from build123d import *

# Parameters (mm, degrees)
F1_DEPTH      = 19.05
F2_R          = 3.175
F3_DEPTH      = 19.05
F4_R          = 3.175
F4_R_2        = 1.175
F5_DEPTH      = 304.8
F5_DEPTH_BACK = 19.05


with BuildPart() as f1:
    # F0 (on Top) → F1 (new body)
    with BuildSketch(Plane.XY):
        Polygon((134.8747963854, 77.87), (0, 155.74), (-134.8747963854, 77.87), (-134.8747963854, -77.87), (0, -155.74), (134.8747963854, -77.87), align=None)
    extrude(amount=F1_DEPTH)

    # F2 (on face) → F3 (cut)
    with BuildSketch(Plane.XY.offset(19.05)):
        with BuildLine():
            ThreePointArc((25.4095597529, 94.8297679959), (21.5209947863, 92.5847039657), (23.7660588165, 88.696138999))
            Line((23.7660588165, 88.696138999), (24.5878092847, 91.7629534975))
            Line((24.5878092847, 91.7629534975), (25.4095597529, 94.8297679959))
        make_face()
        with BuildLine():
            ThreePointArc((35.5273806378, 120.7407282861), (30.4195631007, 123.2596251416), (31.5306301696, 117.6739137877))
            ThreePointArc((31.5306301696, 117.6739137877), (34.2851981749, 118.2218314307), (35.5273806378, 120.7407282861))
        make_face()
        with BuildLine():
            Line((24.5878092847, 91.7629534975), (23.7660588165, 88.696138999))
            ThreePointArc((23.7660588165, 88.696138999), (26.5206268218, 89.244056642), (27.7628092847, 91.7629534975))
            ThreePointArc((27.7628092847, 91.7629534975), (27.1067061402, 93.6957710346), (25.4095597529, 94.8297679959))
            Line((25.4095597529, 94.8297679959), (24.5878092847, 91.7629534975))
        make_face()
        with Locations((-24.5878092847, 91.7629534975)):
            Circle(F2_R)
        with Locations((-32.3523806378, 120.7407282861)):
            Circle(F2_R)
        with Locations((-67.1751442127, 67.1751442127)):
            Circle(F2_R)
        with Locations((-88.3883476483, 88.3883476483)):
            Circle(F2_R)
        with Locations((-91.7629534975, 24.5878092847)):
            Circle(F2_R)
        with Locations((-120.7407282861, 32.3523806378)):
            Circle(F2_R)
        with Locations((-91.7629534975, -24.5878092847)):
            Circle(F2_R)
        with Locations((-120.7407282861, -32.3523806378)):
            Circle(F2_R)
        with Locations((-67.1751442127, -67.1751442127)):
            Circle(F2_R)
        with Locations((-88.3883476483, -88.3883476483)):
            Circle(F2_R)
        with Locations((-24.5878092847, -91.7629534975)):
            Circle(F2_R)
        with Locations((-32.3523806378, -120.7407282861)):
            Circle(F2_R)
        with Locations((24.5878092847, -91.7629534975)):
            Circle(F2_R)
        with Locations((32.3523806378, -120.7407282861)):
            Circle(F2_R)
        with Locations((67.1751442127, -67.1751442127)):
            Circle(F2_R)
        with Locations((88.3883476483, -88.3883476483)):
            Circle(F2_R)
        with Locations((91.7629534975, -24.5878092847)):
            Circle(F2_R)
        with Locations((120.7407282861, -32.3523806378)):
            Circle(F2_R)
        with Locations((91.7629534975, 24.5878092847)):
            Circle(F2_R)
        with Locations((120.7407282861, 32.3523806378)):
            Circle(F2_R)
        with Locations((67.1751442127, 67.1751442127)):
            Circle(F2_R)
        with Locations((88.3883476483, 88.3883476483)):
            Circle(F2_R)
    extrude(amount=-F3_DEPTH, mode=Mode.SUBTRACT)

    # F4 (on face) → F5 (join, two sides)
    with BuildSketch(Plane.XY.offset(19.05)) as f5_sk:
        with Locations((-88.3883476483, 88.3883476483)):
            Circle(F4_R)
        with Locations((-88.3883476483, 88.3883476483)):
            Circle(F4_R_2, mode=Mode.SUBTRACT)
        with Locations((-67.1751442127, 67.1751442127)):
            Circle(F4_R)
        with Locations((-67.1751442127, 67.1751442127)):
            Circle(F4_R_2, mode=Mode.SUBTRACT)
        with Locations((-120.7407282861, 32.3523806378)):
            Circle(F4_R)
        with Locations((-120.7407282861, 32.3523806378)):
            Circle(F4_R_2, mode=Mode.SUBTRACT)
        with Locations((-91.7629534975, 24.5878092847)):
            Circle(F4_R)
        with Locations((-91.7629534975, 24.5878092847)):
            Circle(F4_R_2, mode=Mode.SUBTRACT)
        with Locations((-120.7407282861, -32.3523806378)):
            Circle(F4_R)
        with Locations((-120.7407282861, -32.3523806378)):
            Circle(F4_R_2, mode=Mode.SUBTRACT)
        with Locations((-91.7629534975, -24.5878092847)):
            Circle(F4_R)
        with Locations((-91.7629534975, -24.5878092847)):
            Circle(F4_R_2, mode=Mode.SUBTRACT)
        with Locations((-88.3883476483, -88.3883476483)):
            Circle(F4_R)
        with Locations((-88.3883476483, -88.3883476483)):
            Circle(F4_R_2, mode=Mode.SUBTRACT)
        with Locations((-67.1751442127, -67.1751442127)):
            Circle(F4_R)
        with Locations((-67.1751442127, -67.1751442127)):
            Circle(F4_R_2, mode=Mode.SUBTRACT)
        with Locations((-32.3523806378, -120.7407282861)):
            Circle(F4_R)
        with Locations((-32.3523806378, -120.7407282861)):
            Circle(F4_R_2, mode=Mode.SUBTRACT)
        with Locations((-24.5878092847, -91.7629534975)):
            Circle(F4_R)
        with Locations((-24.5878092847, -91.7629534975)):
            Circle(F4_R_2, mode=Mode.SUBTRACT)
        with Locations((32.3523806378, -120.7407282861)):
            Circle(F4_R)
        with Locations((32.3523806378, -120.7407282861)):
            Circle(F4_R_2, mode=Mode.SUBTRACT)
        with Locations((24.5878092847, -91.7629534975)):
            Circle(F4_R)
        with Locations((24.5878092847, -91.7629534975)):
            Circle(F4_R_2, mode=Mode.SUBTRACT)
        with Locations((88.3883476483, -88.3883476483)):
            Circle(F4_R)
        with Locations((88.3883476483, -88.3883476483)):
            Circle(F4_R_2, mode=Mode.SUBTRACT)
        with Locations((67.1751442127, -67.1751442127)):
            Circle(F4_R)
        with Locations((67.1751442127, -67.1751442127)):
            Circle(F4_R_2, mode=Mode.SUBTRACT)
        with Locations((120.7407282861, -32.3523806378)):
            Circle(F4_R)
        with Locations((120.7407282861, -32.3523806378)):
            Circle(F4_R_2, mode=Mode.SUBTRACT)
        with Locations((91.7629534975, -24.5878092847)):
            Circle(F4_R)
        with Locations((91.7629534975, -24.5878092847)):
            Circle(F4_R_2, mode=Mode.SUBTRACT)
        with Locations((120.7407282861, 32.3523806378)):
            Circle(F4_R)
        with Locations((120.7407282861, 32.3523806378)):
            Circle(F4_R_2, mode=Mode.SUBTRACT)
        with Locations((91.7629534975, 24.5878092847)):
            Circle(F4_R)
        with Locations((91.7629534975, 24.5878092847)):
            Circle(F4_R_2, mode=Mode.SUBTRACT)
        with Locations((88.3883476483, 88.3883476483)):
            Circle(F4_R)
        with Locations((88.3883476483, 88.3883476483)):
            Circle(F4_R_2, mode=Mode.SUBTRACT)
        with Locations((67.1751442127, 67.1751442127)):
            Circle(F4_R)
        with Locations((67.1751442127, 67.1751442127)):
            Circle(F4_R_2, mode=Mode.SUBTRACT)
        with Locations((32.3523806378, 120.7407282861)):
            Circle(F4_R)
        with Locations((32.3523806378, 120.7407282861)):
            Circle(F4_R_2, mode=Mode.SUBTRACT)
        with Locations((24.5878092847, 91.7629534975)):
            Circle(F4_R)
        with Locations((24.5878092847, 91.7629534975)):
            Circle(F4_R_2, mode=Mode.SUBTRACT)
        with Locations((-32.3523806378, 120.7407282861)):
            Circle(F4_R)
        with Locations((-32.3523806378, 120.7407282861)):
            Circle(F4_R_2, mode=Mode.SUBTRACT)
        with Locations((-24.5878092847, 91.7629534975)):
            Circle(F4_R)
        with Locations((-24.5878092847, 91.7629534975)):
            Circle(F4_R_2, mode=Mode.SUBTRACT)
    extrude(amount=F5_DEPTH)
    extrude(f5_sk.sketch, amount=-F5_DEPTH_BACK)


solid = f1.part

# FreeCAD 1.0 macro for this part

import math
import FreeCAD as App
import Part
import Sketcher

V = App.Vector
Q = App.Units.Quantity

doc = App.newDocument("Part")
body = doc.addObject("PartDesign::Body", "Body")

# Sketch on XY plane
sketch1 = body.newObject("Sketcher::SketchObject", "Sketch")
sketch1.AttachmentSupport = (doc.getObject("XY_Plane"), [""])
sketch1.MapMode = "FlatFace"
sketch1.addGeometry([
    Part.LineSegment(V(135, 78, 0), V(0, 156, 0)),  # 0
    Part.LineSegment(V(0, 156, 0), V(-135, 78, 0)),  # 1
    Part.LineSegment(V(-135, 78, 0), V(-135, -78, 0)),  # 2
    Part.LineSegment(V(-135, -78, 0), V(0, -156, 0)),  # 3
    Part.LineSegment(V(0, -156, 0), V(135, -78, 0)),  # 4
    Part.LineSegment(V(135, -78, 0), V(135, 78, 0)),  # 5
], False)
sketch1.addConstraint([
    Sketcher.Constraint("Coincident", 0, 2, 1, 1),
    Sketcher.Constraint("Coincident", 1, 2, 2, 1),
    Sketcher.Constraint("Coincident", 2, 2, 3, 1),
    Sketcher.Constraint("Coincident", 3, 2, 4, 1),
    Sketcher.Constraint("Coincident", 4, 2, 5, 1),
    Sketcher.Constraint("Coincident", 5, 2, 0, 1),
    Sketcher.Constraint("Vertical", 2),
    Sketcher.Constraint("Vertical", 5),
    Sketcher.Constraint("Symmetric", 0, 2, 3, 2, -1, 1),
    Sketcher.Constraint("Symmetric", 1, 2, 4, 2, -1, 1),
    Sketcher.Constraint("PointOnObject", 0, 2, -2),
    Sketcher.Constraint("Parallel", 0, 3),
    Sketcher.Constraint("Horizontal", 2, 2, 4, 2),
    Sketcher.Constraint("Angle", 0, Q("150 deg")),
    Sketcher.Constraint("DistanceY", 2, 2, 2, 1, 155.74),
    Sketcher.Constraint("Distance", 0, 155.74),
])
pad1 = body.newObject("PartDesign::Pad", "Pad")
pad1.Profile = sketch1
pad1.Length = Q("0.75 in")

# Sketch on XY plane
sketch2 = body.newObject("Sketcher::SketchObject", "Sketch001")
sketch2.AttachmentSupport = (doc.getObject("XY_Plane"), [""])
sketch2.MapMode = "FlatFace"
sketch2.AttachmentOffset = App.Placement(V(0, 0, 0.75 * 25.4), App.Rotation())
sketch2.addGeometry([
    Part.ArcOfCircle(Part.Circle(V(24.6, 91.8, 0), V(0, 0, 1), 3.2), math.radians(75), math.radians(255)),  # 0
    Part.ArcOfCircle(Part.Circle(V(24.6, 91.8, 0), V(0, 0, 1), 3.2), math.radians(-105), math.radians(0)),  # 1
    Part.ArcOfCircle(Part.Circle(V(24.6, 91.8, 0), V(0, 0, 1), 3.2), math.radians(0), math.radians(75)),  # 2
    Part.ArcOfCircle(Part.Circle(V(32.4, 120.7, 0), V(0, 0, 1), 3.2), math.radians(0), math.radians(255)),  # 3
    Part.ArcOfCircle(Part.Circle(V(32.4, 120.7, 0), V(0, 0, 1), 3.2), math.radians(-105), math.radians(0)),  # 4
    Part.Circle(V(-24.6, 91.8, 0), V(0, 0, 1), 3.2),  # 5
    Part.Circle(V(-32.4, 120.7, 0), V(0, 0, 1), 3.2),  # 6
    Part.Circle(V(-67.2, 67.2, 0), V(0, 0, 1), 3.2),  # 7
    Part.Circle(V(-88.4, 88.4, 0), V(0, 0, 1), 3.2),  # 8
    Part.Circle(V(-91.8, 24.6, 0), V(0, 0, 1), 3.2),  # 9
    Part.Circle(V(-120.7, 32.4, 0), V(0, 0, 1), 3.2),  # 10
    Part.Circle(V(-91.8, -24.6, 0), V(0, 0, 1), 3.2),  # 11
    Part.Circle(V(-120.7, -32.4, 0), V(0, 0, 1), 3.2),  # 12
    Part.Circle(V(-67.2, -67.2, 0), V(0, 0, 1), 3.2),  # 13
    Part.Circle(V(-88.4, -88.4, 0), V(0, 0, 1), 3.2),  # 14
    Part.Circle(V(-24.6, -91.8, 0), V(0, 0, 1), 3.2),  # 15
    Part.Circle(V(-32.4, -120.7, 0), V(0, 0, 1), 3.2),  # 16
    Part.Circle(V(24.6, -91.8, 0), V(0, 0, 1), 3.2),  # 17
    Part.Circle(V(32.4, -120.7, 0), V(0, 0, 1), 3.2),  # 18
    Part.Circle(V(67.2, -67.2, 0), V(0, 0, 1), 3.2),  # 19
    Part.Circle(V(88.4, -88.4, 0), V(0, 0, 1), 3.2),  # 20
    Part.Circle(V(91.8, -24.6, 0), V(0, 0, 1), 3.2),  # 21
    Part.Circle(V(120.7, -32.4, 0), V(0, 0, 1), 3.2),  # 22
    Part.Circle(V(91.8, 24.6, 0), V(0, 0, 1), 3.2),  # 23
    Part.Circle(V(120.7, 32.4, 0), V(0, 0, 1), 3.2),  # 24
    Part.Circle(V(67.2, 67.2, 0), V(0, 0, 1), 3.2),  # 25
    Part.Circle(V(88.4, 88.4, 0), V(0, 0, 1), 3.2),  # 26
], False)
sketch2.addConstraint([
    Sketcher.Constraint("Tangent", 0, 2, 1, 1),
    Sketcher.Constraint("Tangent", 1, 2, 2, 1),
    Sketcher.Constraint("Tangent", 2, 2, 0, 1),
    Sketcher.Constraint("Tangent", 3, 1, 4, 2),
    Sketcher.Constraint("Coincident", 4, 1, 3, 2),
    Sketcher.Constraint("Equal", 2, 3),
    Sketcher.Constraint("Equal", 4, 5),
    Sketcher.Constraint("Equal", 5, 6),
    Sketcher.Constraint("Equal", 6, 7),
    Sketcher.Constraint("Equal", 7, 8),
    Sketcher.Constraint("Equal", 8, 9),
    Sketcher.Constraint("Equal", 9, 10),
    Sketcher.Constraint("Equal", 10, 11),
    Sketcher.Constraint("Equal", 11, 12),
    Sketcher.Constraint("Equal", 12, 13),
    Sketcher.Constraint("Equal", 13, 14),
    Sketcher.Constraint("Equal", 14, 15),
    Sketcher.Constraint("Equal", 15, 16),
    Sketcher.Constraint("Equal", 16, 17),
    Sketcher.Constraint("Equal", 17, 18),
    Sketcher.Constraint("Equal", 18, 19),
    Sketcher.Constraint("Equal", 19, 20),
    Sketcher.Constraint("Equal", 20, 21),
    Sketcher.Constraint("Equal", 21, 22),
    Sketcher.Constraint("Equal", 22, 23),
    Sketcher.Constraint("Equal", 23, 24),
    Sketcher.Constraint("Equal", 24, 25),
    Sketcher.Constraint("Equal", 25, 26),
    Sketcher.Constraint("Symmetric", 0, 3, 15, 3, -1, 1),
    Sketcher.Constraint("Symmetric", 3, 3, 16, 3, -1, 1),
    Sketcher.Constraint("Symmetric", 5, 3, 17, 3, -1, 1),
    Sketcher.Constraint("Symmetric", 6, 3, 18, 3, -1, 1),
    Sketcher.Constraint("Symmetric", 7, 3, 19, 3, -1, 1),
    Sketcher.Constraint("Symmetric", 8, 3, 20, 3, -1, 1),
    Sketcher.Constraint("Symmetric", 9, 3, 21, 3, -1, 1),
    Sketcher.Constraint("Symmetric", 10, 3, 22, 3, -1, 1),
    Sketcher.Constraint("Symmetric", 11, 3, 23, 3, -1, 1),
    Sketcher.Constraint("Symmetric", 12, 3, 24, 3, -1, 1),
    Sketcher.Constraint("Symmetric", 13, 3, 25, 3, -1, 1),
    Sketcher.Constraint("Symmetric", 14, 3, 26, 3, -1, 1),
    Sketcher.Constraint("Symmetric", 0, 3, 5, 3, -2),
    Sketcher.Constraint("Symmetric", 3, 3, 6, 3, -2),
    Sketcher.Constraint("Symmetric", 13, 3, 19, 3, -2),
    Sketcher.Constraint("Symmetric", 14, 3, 20, 3, -2),
    Sketcher.Constraint("Symmetric", 11, 3, 21, 3, -2),
    Sketcher.Constraint("Symmetric", 12, 3, 22, 3, -2),
    Sketcher.Constraint("Horizontal", 5, 3, 1, 2),
    Sketcher.Constraint("Horizontal", 6, 3, 3, 1),
    Sketcher.Constraint("Diameter", 5, Q("0.25 in")),
    Sketcher.Constraint("DistanceX", 0, 2, 2, 2, 1.643501),
    Sketcher.Constraint("DistanceX", -1, 1, 0, 3, 24.587809),
    Sketcher.Constraint("DistanceX", -1, 1, 3, 3, 32.352381),
    Sketcher.Constraint("DistanceY", -1, 1, 3, 3, 120.740728),
    Sketcher.Constraint("DistanceY", -1, 1, 9, 3, 24.587809),
    Sketcher.Constraint("DistanceX", 10, 3, -1, 1, 120.740728),
    Sketcher.Constraint("DistanceY", -1, 1, 10, 3, 32.352381),
    Sketcher.Constraint("DistanceX", -1, 1, 0, 2, 23.766059),
    Sketcher.Constraint("DistanceY", -1, 1, 0, 2, 88.696139),
    Sketcher.Constraint("DistanceX", -1, 1, 4, 1, 31.53063),
    Sketcher.Constraint("DistanceY", 7, 3, 5, 3, 24.587809),
    Sketcher.Constraint("DistanceX", 8, 3, 5, 3, 63.800538),
    Sketcher.Constraint("DistanceY", 8, 3, 6, 3, 32.352381),
    Sketcher.Constraint("DistanceX", 9, 3, 7, 3, 24.587809),
    Sketcher.Constraint("DistanceX", 13, 3, 19, 3, 134.350288),
])
pocket1 = body.newObject("PartDesign::Pocket", "Pocket")
pocket1.Profile = sketch2
pocket1.Length = Q("0.75 in")

# Sketch on XY plane
sketch3 = body.newObject("Sketcher::SketchObject", "Sketch002")
sketch3.AttachmentSupport = (doc.getObject("XY_Plane"), [""])
sketch3.MapMode = "FlatFace"
sketch3.AttachmentOffset = App.Placement(V(0, 0, 0.75 * 25.4), App.Rotation())
sketch3.addGeometry([
    Part.Circle(V(-88.4, 88.4, 0), V(0, 0, 1), 3.2),  # 0
    Part.Circle(V(-88.4, 88.4, 0), V(0, 0, 1), 1.2),  # 1
    Part.Circle(V(-67.2, 67.2, 0), V(0, 0, 1), 3.2),  # 2
    Part.Circle(V(-67.2, 67.2, 0), V(0, 0, 1), 1.2),  # 3
    Part.Circle(V(-120.7, 32.4, 0), V(0, 0, 1), 3.2),  # 4
    Part.Circle(V(-120.7, 32.4, 0), V(0, 0, 1), 1.2),  # 5
    Part.Circle(V(-91.8, 24.6, 0), V(0, 0, 1), 3.2),  # 6
    Part.Circle(V(-91.8, 24.6, 0), V(0, 0, 1), 1.2),  # 7
    Part.Circle(V(-120.7, -32.4, 0), V(0, 0, 1), 3.2),  # 8
    Part.Circle(V(-120.7, -32.4, 0), V(0, 0, 1), 1.2),  # 9
    Part.Circle(V(-91.8, -24.6, 0), V(0, 0, 1), 3.2),  # 10
    Part.Circle(V(-91.8, -24.6, 0), V(0, 0, 1), 1.2),  # 11
    Part.Circle(V(-88.4, -88.4, 0), V(0, 0, 1), 3.2),  # 12
    Part.Circle(V(-88.4, -88.4, 0), V(0, 0, 1), 1.2),  # 13
    Part.Circle(V(-67.2, -67.2, 0), V(0, 0, 1), 3.2),  # 14
    Part.Circle(V(-67.2, -67.2, 0), V(0, 0, 1), 1.2),  # 15
    Part.Circle(V(-32.4, -120.7, 0), V(0, 0, 1), 3.2),  # 16
    Part.Circle(V(-32.4, -120.7, 0), V(0, 0, 1), 1.2),  # 17
    Part.Circle(V(-24.6, -91.8, 0), V(0, 0, 1), 3.2),  # 18
    Part.Circle(V(-24.6, -91.8, 0), V(0, 0, 1), 1.2),  # 19
    Part.Circle(V(32.4, -120.7, 0), V(0, 0, 1), 3.2),  # 20
    Part.Circle(V(32.4, -120.7, 0), V(0, 0, 1), 1.2),  # 21
    Part.Circle(V(24.6, -91.8, 0), V(0, 0, 1), 3.2),  # 22
    Part.Circle(V(24.6, -91.8, 0), V(0, 0, 1), 1.2),  # 23
    Part.Circle(V(88.4, -88.4, 0), V(0, 0, 1), 3.2),  # 24
    Part.Circle(V(88.4, -88.4, 0), V(0, 0, 1), 1.2),  # 25
    Part.Circle(V(67.2, -67.2, 0), V(0, 0, 1), 3.2),  # 26
    Part.Circle(V(67.2, -67.2, 0), V(0, 0, 1), 1.2),  # 27
    Part.Circle(V(120.7, -32.4, 0), V(0, 0, 1), 3.2),  # 28
    Part.Circle(V(120.7, -32.4, 0), V(0, 0, 1), 1.2),  # 29
    Part.Circle(V(91.8, -24.6, 0), V(0, 0, 1), 3.2),  # 30
    Part.Circle(V(91.8, -24.6, 0), V(0, 0, 1), 1.2),  # 31
    Part.Circle(V(120.7, 32.4, 0), V(0, 0, 1), 3.2),  # 32
    Part.Circle(V(120.7, 32.4, 0), V(0, 0, 1), 1.2),  # 33
    Part.Circle(V(91.8, 24.6, 0), V(0, 0, 1), 3.2),  # 34
    Part.Circle(V(91.8, 24.6, 0), V(0, 0, 1), 1.2),  # 35
    Part.Circle(V(88.4, 88.4, 0), V(0, 0, 1), 3.2),  # 36
    Part.Circle(V(88.4, 88.4, 0), V(0, 0, 1), 1.2),  # 37
    Part.Circle(V(67.2, 67.2, 0), V(0, 0, 1), 3.2),  # 38
    Part.Circle(V(67.2, 67.2, 0), V(0, 0, 1), 1.2),  # 39
    Part.Circle(V(32.4, 120.7, 0), V(0, 0, 1), 3.2),  # 40
    Part.Circle(V(32.4, 120.7, 0), V(0, 0, 1), 1.2),  # 41
    Part.Circle(V(24.6, 91.8, 0), V(0, 0, 1), 3.2),  # 42
    Part.Circle(V(24.6, 91.8, 0), V(0, 0, 1), 1.2),  # 43
    Part.Circle(V(-32.4, 120.7, 0), V(0, 0, 1), 3.2),  # 44
    Part.Circle(V(-32.4, 120.7, 0), V(0, 0, 1), 1.2),  # 45
    Part.Circle(V(-24.6, 91.8, 0), V(0, 0, 1), 3.2),  # 46
    Part.Circle(V(-24.6, 91.8, 0), V(0, 0, 1), 1.2),  # 47
], False)
sketch3.addConstraint([
    Sketcher.Constraint("Coincident", 1, 3, 0, 3),
    Sketcher.Constraint("Coincident", 3, 3, 2, 3),
    Sketcher.Constraint("Coincident", 5, 3, 4, 3),
    Sketcher.Constraint("Coincident", 7, 3, 6, 3),
    Sketcher.Constraint("Coincident", 9, 3, 8, 3),
    Sketcher.Constraint("Coincident", 11, 3, 10, 3),
    Sketcher.Constraint("Coincident", 13, 3, 12, 3),
    Sketcher.Constraint("Coincident", 15, 3, 14, 3),
    Sketcher.Constraint("Coincident", 17, 3, 16, 3),
    Sketcher.Constraint("Coincident", 19, 3, 18, 3),
    Sketcher.Constraint("Coincident", 21, 3, 20, 3),
    Sketcher.Constraint("Coincident", 23, 3, 22, 3),
    Sketcher.Constraint("Coincident", 25, 3, 24, 3),
    Sketcher.Constraint("Coincident", 27, 3, 26, 3),
    Sketcher.Constraint("Coincident", 29, 3, 28, 3),
    Sketcher.Constraint("Coincident", 31, 3, 30, 3),
    Sketcher.Constraint("Coincident", 33, 3, 32, 3),
    Sketcher.Constraint("Coincident", 35, 3, 34, 3),
    Sketcher.Constraint("Coincident", 37, 3, 36, 3),
    Sketcher.Constraint("Coincident", 39, 3, 38, 3),
    Sketcher.Constraint("Coincident", 41, 3, 40, 3),
    Sketcher.Constraint("Coincident", 43, 3, 42, 3),
    Sketcher.Constraint("Coincident", 45, 3, 44, 3),
    Sketcher.Constraint("Coincident", 47, 3, 46, 3),
    Sketcher.Constraint("Equal", 0, 2),
    Sketcher.Constraint("Equal", 1, 3),
    Sketcher.Constraint("Equal", 2, 4),
    Sketcher.Constraint("Equal", 3, 5),
    Sketcher.Constraint("Equal", 4, 6),
    Sketcher.Constraint("Equal", 5, 7),
    Sketcher.Constraint("Equal", 6, 8),
    Sketcher.Constraint("Equal", 7, 9),
    Sketcher.Constraint("Equal", 8, 10),
    Sketcher.Constraint("Equal", 9, 11),
    Sketcher.Constraint("Equal", 10, 12),
    Sketcher.Constraint("Equal", 11, 13),
    Sketcher.Constraint("Equal", 12, 14),
    Sketcher.Constraint("Equal", 13, 15),
    Sketcher.Constraint("Equal", 14, 16),
    Sketcher.Constraint("Equal", 15, 17),
    Sketcher.Constraint("Equal", 16, 18),
    Sketcher.Constraint("Equal", 17, 19),
    Sketcher.Constraint("Equal", 18, 20),
    Sketcher.Constraint("Equal", 19, 21),
    Sketcher.Constraint("Equal", 20, 22),
    Sketcher.Constraint("Equal", 21, 23),
    Sketcher.Constraint("Equal", 22, 24),
    Sketcher.Constraint("Equal", 23, 25),
    Sketcher.Constraint("Equal", 24, 26),
    Sketcher.Constraint("Equal", 25, 27),
    Sketcher.Constraint("Equal", 26, 28),
    Sketcher.Constraint("Equal", 27, 29),
    Sketcher.Constraint("Equal", 28, 30),
    Sketcher.Constraint("Equal", 29, 31),
    Sketcher.Constraint("Equal", 30, 32),
    Sketcher.Constraint("Equal", 31, 33),
    Sketcher.Constraint("Equal", 32, 34),
    Sketcher.Constraint("Equal", 33, 35),
    Sketcher.Constraint("Equal", 34, 36),
    Sketcher.Constraint("Equal", 35, 37),
    Sketcher.Constraint("Equal", 36, 38),
    Sketcher.Constraint("Equal", 37, 39),
    Sketcher.Constraint("Equal", 38, 40),
    Sketcher.Constraint("Equal", 39, 41),
    Sketcher.Constraint("Equal", 40, 42),
    Sketcher.Constraint("Equal", 41, 43),
    Sketcher.Constraint("Equal", 42, 44),
    Sketcher.Constraint("Equal", 43, 45),
    Sketcher.Constraint("Equal", 44, 46),
    Sketcher.Constraint("Equal", 45, 47),
    Sketcher.Constraint("Symmetric", 0, 3, 24, 3, -1, 1),
    Sketcher.Constraint("Symmetric", 2, 3, 26, 3, -1, 1),
    Sketcher.Constraint("Symmetric", 4, 3, 28, 3, -1, 1),
    Sketcher.Constraint("Symmetric", 6, 3, 30, 3, -1, 1),
    Sketcher.Constraint("Symmetric", 8, 3, 32, 3, -1, 1),
    Sketcher.Constraint("Symmetric", 10, 3, 34, 3, -1, 1),
    Sketcher.Constraint("Symmetric", 12, 3, 36, 3, -1, 1),
    Sketcher.Constraint("Symmetric", 14, 3, 38, 3, -1, 1),
    Sketcher.Constraint("Symmetric", 16, 3, 40, 3, -1, 1),
    Sketcher.Constraint("Symmetric", 18, 3, 42, 3, -1, 1),
    Sketcher.Constraint("Symmetric", 20, 3, 44, 3, -1, 1),
    Sketcher.Constraint("Symmetric", 22, 3, 46, 3, -1, 1),
    Sketcher.Constraint("Symmetric", 16, 3, 20, 3, -2),
    Sketcher.Constraint("Symmetric", 18, 3, 22, 3, -2),
    Sketcher.Constraint("Symmetric", 12, 3, 24, 3, -2),
    Sketcher.Constraint("Symmetric", 14, 3, 26, 3, -2),
    Sketcher.Constraint("Symmetric", 8, 3, 28, 3, -2),
    Sketcher.Constraint("Symmetric", 10, 3, 30, 3, -2),
    Sketcher.Constraint("Diameter", 0, Q("0.25 in")),
    Sketcher.Constraint("Diameter", 1, 2.35),
    Sketcher.Constraint("DistanceX", 4, 3, -1, 1, 120.740728),
    Sketcher.Constraint("DistanceY", -1, 1, 4, 3, 32.352381),
    Sketcher.Constraint("DistanceY", -1, 1, 6, 3, 24.587809),
    Sketcher.Constraint("DistanceX", 16, 3, -1, 1, 32.352381),
    Sketcher.Constraint("DistanceY", 16, 3, -1, 1, 120.740728),
    Sketcher.Constraint("DistanceX", 18, 3, -1, 1, 24.587809),
    Sketcher.Constraint("DistanceX", 4, 3, 0, 3, 32.352381),
    Sketcher.Constraint("DistanceX", 6, 3, 2, 3, 24.587809),
    Sketcher.Constraint("DistanceY", 6, 3, 0, 3, 63.800538),
    Sketcher.Constraint("DistanceY", 18, 3, 14, 3, 24.587809),
    Sketcher.Constraint("DistanceX", 2, 3, -1, 1, 67.175144),
    Sketcher.Constraint("DistanceY", -1, 1, 2, 3, 67.175144),
])
pad2 = body.newObject("PartDesign::Pad", "Pad001")
pad2.Profile = sketch3
pad2.Type = "TwoLengths"
pad2.Length = Q("12 in")
pad2.Length2 = Q("0.75 in")

doc.recompute()
